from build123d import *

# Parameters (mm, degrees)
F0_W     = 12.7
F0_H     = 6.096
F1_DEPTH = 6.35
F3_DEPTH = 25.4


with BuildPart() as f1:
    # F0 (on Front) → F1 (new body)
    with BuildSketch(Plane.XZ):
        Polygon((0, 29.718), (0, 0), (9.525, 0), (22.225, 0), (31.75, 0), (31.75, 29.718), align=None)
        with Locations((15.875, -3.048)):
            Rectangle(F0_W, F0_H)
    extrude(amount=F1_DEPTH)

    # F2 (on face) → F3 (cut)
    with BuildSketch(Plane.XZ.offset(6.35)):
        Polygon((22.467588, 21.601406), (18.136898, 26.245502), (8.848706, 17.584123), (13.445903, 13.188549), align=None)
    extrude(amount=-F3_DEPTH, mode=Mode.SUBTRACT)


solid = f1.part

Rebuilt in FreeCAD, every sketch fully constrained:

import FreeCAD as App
import Part
import Sketcher
from FreeCAD import Vector
Q = App.Units.Quantity


def add_polygon(sketch, points):
    """Adds a closed chain of lines whose ends are joined by coincident constraints."""
    first, n = sketch.GeometryCount, len(points)
    for a, b in zip(points, points[1:] + points[:1]):
        sketch.addGeometry(Part.LineSegment(App.Vector(*a, 0), App.Vector(*b, 0)), False)
    for i in range(n):
        sketch.addConstraint(Sketcher.Constraint("Coincident", first + i, 2, first + (i + 1) % n, 1))

doc = App.newDocument("Part")
body = doc.addObject("PartDesign::Body", "Body")

# Sketch on XZ plane
sketch1 = body.newObject("Sketcher::SketchObject", "Sketch")
sketch1.AttachmentSupport = (doc.getObject("XZ_Plane"), [""])
sketch1.MapMode = "FlatFace"
add_polygon(sketch1, [(0, 30), (0, 0), (10, 0), (10, -6), (22, -6), (22, 0), (32, 0), (32, 30)])  # lines 0-7
sketch1.addConstraint([
    Sketcher.Constraint("Vertical", 0),
    Sketcher.Constraint("Horizontal", 1),
    Sketcher.Constraint("Vertical", 2),
    Sketcher.Constraint("Horizontal", 3),
    Sketcher.Constraint("Vertical", 4),
    Sketcher.Constraint("Horizontal", 5),
    Sketcher.Constraint("Vertical", 6),
    Sketcher.Constraint("Horizontal", 7),
    Sketcher.Constraint("Coincident", 0, 2, -1, 1),
    Sketcher.Constraint("PointOnObject", 4, 2, -1),
    Sketcher.Constraint("Equal", 1, 5),
    Sketcher.Constraint("DistanceX", 3, 1, 3, 2, Q("0.5 in")),
    Sketcher.Constraint("DistanceX", 7, 2, 7, 1, Q("1.25 in")),
    Sketcher.Constraint("DistanceY", 0, 2, 0, 1, Q("1.17 in")),
    Sketcher.Constraint("DistanceY", 2, 2, 2, 1, Q("0.24 in")),
])
pad1 = body.newObject("PartDesign::Pad", "Pad")
pad1.Profile = sketch1
pad1.Length = Q("0.25 in")

# Sketch on XZ plane
sketch2 = body.newObject("Sketcher::SketchObject", "Sketch001")
sketch2.AttachmentSupport = (doc.getObject("XZ_Plane"), [""])
sketch2.MapMode = "FlatFace"
sketch2.AttachmentOffset = App.Placement(Vector(0, 0, 0.25 * 25.4), App.Rotation())
add_polygon(sketch2, [(22, 22), (18, 26), (9, 18), (13, 13)])  # lines 0-3
sketch2.addConstraint([
    Sketcher.Constraint("Perpendicular", 0, 1),
    Sketcher.Constraint("Parallel", 1, 3),
    Sketcher.Constraint("Angle", 0, Q("133.000003 deg")),
    Sketcher.Constraint("Distance", 1, Q("0.5 in")),
    Sketcher.Constraint("Distance", 0, Q("0.25 in")),
    Sketcher.Constraint("DistanceY", -1, 1, 0, 2, 26.245502),
    Sketcher.Constraint("DistanceY", -1, 1, 2, 2, 13.188549),
    Sketcher.Constraint("DistanceX", -1, 1, 0, 2, 18.136898),
])
pocket1 = body.newObject("PartDesign::Pocket", "Pocket")
pocket1.Profile = sketch2
pocket1.Length = Q("1 in")

doc.recompute()
